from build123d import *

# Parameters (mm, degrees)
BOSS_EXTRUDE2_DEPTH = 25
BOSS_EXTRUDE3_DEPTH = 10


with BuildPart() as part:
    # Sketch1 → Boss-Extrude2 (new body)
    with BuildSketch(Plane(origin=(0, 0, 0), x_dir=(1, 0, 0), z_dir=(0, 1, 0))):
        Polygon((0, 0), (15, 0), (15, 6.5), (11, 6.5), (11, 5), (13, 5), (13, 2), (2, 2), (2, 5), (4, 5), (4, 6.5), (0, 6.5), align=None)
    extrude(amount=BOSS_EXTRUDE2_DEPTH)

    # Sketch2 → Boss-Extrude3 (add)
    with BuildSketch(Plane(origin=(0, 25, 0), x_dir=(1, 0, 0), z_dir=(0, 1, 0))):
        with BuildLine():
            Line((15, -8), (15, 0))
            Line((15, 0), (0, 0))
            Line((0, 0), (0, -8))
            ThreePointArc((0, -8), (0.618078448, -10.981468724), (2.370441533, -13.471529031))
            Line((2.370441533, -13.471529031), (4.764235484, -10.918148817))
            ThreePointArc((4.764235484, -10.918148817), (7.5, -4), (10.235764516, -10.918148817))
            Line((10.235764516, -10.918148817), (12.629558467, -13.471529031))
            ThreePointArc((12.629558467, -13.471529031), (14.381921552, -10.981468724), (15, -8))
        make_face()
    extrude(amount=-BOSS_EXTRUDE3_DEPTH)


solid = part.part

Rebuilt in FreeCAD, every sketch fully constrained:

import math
import FreeCAD as App
import Part
import Sketcher

doc = App.newDocument("Part")
body = doc.addObject("PartDesign::Body", "Body")

sketch1 = body.newObject("Sketcher::SketchObject", "Sketch")
sketch1.AttachmentSupport = (doc.getObject("XZ_Plane"), [""])
sketch1.MapMode = "FlatFace"
sketch1.addGeometry([
    Part.LineSegment(App.Vector(0, 0, 0), App.Vector(15, 0, 0)),
    Part.LineSegment(App.Vector(15, 0, 0), App.Vector(15, -6.5, 0)),
    Part.LineSegment(App.Vector(15, -6.5, 0), App.Vector(11, -6.5, 0)),
    Part.LineSegment(App.Vector(11, -6.5, 0), App.Vector(11, -5, 0)),
    Part.LineSegment(App.Vector(11, -5, 0), App.Vector(13, -5, 0)),
    Part.LineSegment(App.Vector(13, -5, 0), App.Vector(13, -2, 0)),
    Part.LineSegment(App.Vector(13, -2, 0), App.Vector(2, -2, 0)),
    Part.LineSegment(App.Vector(2, -2, 0), App.Vector(2, -5, 0)),
    Part.LineSegment(App.Vector(2, -5, 0), App.Vector(4, -5, 0)),
    Part.LineSegment(App.Vector(4, -5, 0), App.Vector(4, -6.5, 0)),
    Part.LineSegment(App.Vector(4, -6.5, 0), App.Vector(0, -6.5, 0)),
    Part.LineSegment(App.Vector(0, -6.5, 0), App.Vector(0, 0, 0)),
], False)
sketch1.addConstraint([
    Sketcher.Constraint("Coincident", 0, 2, 1, 1),
    Sketcher.Constraint("Coincident", 1, 2, 2, 1),
    Sketcher.Constraint("Coincident", 2, 2, 3, 1),
    Sketcher.Constraint("Coincident", 3, 2, 4, 1),
    Sketcher.Constraint("Coincident", 4, 2, 5, 1),
    Sketcher.Constraint("Coincident", 5, 2, 6, 1),
    Sketcher.Constraint("Coincident", 6, 2, 7, 1),
    Sketcher.Constraint("Coincident", 7, 2, 8, 1),
    Sketcher.Constraint("Coincident", 8, 2, 9, 1),
    Sketcher.Constraint("Coincident", 9, 2, 10, 1),
    Sketcher.Constraint("Coincident", 10, 2, 11, 1),
    Sketcher.Constraint("Coincident", 11, 2, 0, 1),
    Sketcher.Constraint("Horizontal", 0),
    Sketcher.Constraint("Vertical", 1),
    Sketcher.Constraint("Horizontal", 2),
    Sketcher.Constraint("Vertical", 3),
    Sketcher.Constraint("Horizontal", 4),
    Sketcher.Constraint("Vertical", 5),
    Sketcher.Constraint("Horizontal", 6),
    Sketcher.Constraint("Vertical", 7),
    Sketcher.Constraint("Horizontal", 8),
    Sketcher.Constraint("Vertical", 9),
    Sketcher.Constraint("Horizontal", 10),
    Sketcher.Constraint("Vertical", 11),
    Sketcher.Constraint("Coincident", 11, 2, -1, 1),
    Sketcher.Constraint("Horizontal", 4, 2, 7, 2),
    Sketcher.Constraint("Horizontal", 2, 2, 9, 2),
    Sketcher.Constraint("Equal", 4, 8),
    Sketcher.Constraint("Equal", 2, 10),
    Sketcher.Constraint("DistanceX", 0, 1, 0, 2, 15.0),
    Sketcher.Constraint("DistanceX", 2, 2, 2, 1, 4.0),
    Sketcher.Constraint("DistanceX", 4, 1, 4, 2, 2.0),
    Sketcher.Constraint("DistanceY", 5, 1, 5, 2, 3.0),
    Sketcher.Constraint("DistanceY", 1, 2, 1, 1, 6.5),
    Sketcher.Constraint("DistanceY", 3, 1, 3, 2, 1.5),
])
pad1 = body.newObject("PartDesign::Pad", "Pad")
pad1.Profile = sketch1
pad1.Length = 25
pad1.Reversed = True

sketch2 = body.newObject("Sketcher::SketchObject", "Sketch001")
sketch2.AttachmentSupport = (doc.getObject("XZ_Plane"), [""])
sketch2.MapMode = "FlatFace"
sketch2.AttachmentOffset = App.Placement(App.Vector(0, 0, -25), App.Rotation())
sketch2.addGeometry([
    Part.LineSegment(App.Vector(15, 8, 0), App.Vector(15, 0, 0)),
    Part.LineSegment(App.Vector(15, 0, 0), App.Vector(0, 0, 0)),
    Part.LineSegment(App.Vector(0, 0, 0), App.Vector(0, 8, 0)),
    Part.ArcOfCircle(Part.Circle(App.Vector(7.5, 8, 0), App.Vector(0, 0, 1), 7.5), math.radians(133), math.radians(180)),
    Part.LineSegment(App.Vector(2.4, 13.5, 0), App.Vector(4.8, 10.9, 0)),
    Part.ArcOfCircle(Part.Circle(App.Vector(7.5, 8, 0), App.Vector(0, 0, 1), 4), math.radians(133), math.radians(407)),
    Part.LineSegment(App.Vector(10.2, 10.9, 0), App.Vector(12.6, 13.5, 0)),
    Part.ArcOfCircle(Part.Circle(App.Vector(7.5, 8, 0), App.Vector(0, 0, 1), 7.5), math.radians(0), math.radians(47)),
], False)
sketch2.addConstraint([
    Sketcher.Constraint("Coincident", 0, 2, 1, 1),
    Sketcher.Constraint("Coincident", 1, 2, 2, 1),
    Sketcher.Constraint("Tangent", 2, 2, 3, 2),
    Sketcher.Constraint("Coincident", 3, 1, 4, 1),
    Sketcher.Constraint("Coincident", 4, 2, 5, 1),
    Sketcher.Constraint("Coincident", 5, 2, 6, 1),
    Sketcher.Constraint("Coincident", 6, 2, 7, 2),
    Sketcher.Constraint("Tangent", 7, 1, 0, 1),
    Sketcher.Constraint("Vertical", 0),
    Sketcher.Constraint("Horizontal", 1),
    Sketcher.Constraint("Vertical", 2),
    Sketcher.Constraint("Coincident", 1, 2, -1, 1),
    Sketcher.Constraint("Coincident", 5, 3, 3, 3),
    Sketcher.Constraint("Coincident", 7, 3, 3, 3),
    Sketcher.Constraint("Equal", 3, 7),
    Sketcher.Constraint("Horizontal", 4, 2, 5, 2),
    Sketcher.Constraint("Horizontal", 3, 1, 6, 2),
    Sketcher.Constraint("Radius", 5, 4.0),
    Sketcher.Constraint("Radius", 3, 7.5),
    Sketcher.Constraint("DistanceY", 0, 2, 0, 1, 8.0),
    Sketcher.Constraint("DistanceX", -1, 1, 3, 1, 2.370442),
    Sketcher.Constraint("DistanceY", -1, 1, 4, 2, 10.918149),
])
pad2 = body.newObject("PartDesign::Pad", "Pad001")
pad2.Profile = sketch2
pad2.Length = 10

doc.recompute()
